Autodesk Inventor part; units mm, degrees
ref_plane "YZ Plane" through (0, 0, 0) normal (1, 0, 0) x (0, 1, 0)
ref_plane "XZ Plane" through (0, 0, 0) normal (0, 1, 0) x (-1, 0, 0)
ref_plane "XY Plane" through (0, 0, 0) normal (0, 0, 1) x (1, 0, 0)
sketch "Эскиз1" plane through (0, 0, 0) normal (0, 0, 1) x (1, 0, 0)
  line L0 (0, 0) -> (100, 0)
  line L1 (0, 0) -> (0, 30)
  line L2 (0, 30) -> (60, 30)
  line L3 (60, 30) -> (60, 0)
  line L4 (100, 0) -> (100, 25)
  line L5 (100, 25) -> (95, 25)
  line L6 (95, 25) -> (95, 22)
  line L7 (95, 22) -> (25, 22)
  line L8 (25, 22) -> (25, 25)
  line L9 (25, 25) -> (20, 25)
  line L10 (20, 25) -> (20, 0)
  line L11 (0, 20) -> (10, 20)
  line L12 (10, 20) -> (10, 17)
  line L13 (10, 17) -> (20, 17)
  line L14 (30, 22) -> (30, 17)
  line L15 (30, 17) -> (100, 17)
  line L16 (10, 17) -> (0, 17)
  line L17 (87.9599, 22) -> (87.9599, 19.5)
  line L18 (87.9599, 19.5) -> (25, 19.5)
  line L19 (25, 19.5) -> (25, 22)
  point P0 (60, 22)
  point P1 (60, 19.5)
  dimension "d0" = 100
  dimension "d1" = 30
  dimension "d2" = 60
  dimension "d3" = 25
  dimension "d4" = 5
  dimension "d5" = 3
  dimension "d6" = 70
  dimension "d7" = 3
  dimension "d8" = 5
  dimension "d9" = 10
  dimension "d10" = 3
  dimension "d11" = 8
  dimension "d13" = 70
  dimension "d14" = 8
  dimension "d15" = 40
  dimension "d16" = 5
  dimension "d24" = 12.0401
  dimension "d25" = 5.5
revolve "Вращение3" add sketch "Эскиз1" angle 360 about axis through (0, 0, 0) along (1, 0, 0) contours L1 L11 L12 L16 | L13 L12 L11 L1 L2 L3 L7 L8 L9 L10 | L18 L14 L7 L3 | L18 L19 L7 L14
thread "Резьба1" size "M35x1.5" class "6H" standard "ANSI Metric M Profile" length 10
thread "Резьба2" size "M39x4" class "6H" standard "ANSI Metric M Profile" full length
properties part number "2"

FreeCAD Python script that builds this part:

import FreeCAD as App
import Part
import Sketcher
from FreeCAD import Vector
Q = App.Units.Quantity

doc = App.newDocument("Part")
body = doc.addObject("PartDesign::Body", "Body")

# Sketch on XY plane
sketch1 = body.newObject("Sketcher::SketchObject", "Sketch")
sketch1.AttachmentSupport = (doc.getObject("XY_Plane"), [""])
sketch1.MapMode = "FlatFace"
sketch1.addGeometry([
    Part.LineSegment(Vector(0, 17, 0), Vector(20, 17, 0)),  # 0
    Part.LineSegment(Vector(20, 17, 0), Vector(20, 25, 0)),  # 1
    Part.LineSegment(Vector(20, 25, 0), Vector(25, 25, 0)),  # 2
    Part.LineSegment(Vector(25, 25, 0), Vector(25, 20, 0)),  # 3
    Part.LineSegment(Vector(25, 20, 0), Vector(60, 20, 0)),  # 4
    Part.LineSegment(Vector(60, 20, 0), Vector(60, 30, 0)),  # 5
    Part.LineSegment(Vector(60, 30, 0), Vector(0, 30, 0)),  # 6
    Part.LineSegment(Vector(0, 30, 0), Vector(0, 17, 0)),  # 7
], False)
sketch1.addConstraint([
    Sketcher.Constraint("Coincident", 0, 2, 1, 1),
    Sketcher.Constraint("Coincident", 1, 2, 2, 1),
    Sketcher.Constraint("Coincident", 2, 2, 3, 1),
    Sketcher.Constraint("Coincident", 3, 2, 4, 1),
    Sketcher.Constraint("Coincident", 4, 2, 5, 1),
    Sketcher.Constraint("Coincident", 5, 2, 6, 1),
    Sketcher.Constraint("Coincident", 6, 2, 7, 1),
    Sketcher.Constraint("Coincident", 7, 2, 0, 1),
    Sketcher.Constraint("Horizontal", 0),
    Sketcher.Constraint("Vertical", 1),
    Sketcher.Constraint("Horizontal", 2),
    Sketcher.Constraint("Vertical", 3),
    Sketcher.Constraint("Horizontal", 4),
    Sketcher.Constraint("Vertical", 5),
    Sketcher.Constraint("Horizontal", 6),
    Sketcher.Constraint("Vertical", 7),
    Sketcher.Constraint("PointOnObject", 6, 2, -2),
    Sketcher.Constraint("DistanceX", 2, 1, 2, 2, Q("5 mm")),
    Sketcher.Constraint("DistanceX", 6, 2, 6, 1, Q("60 mm")),
    Sketcher.Constraint("DistanceY", 1, 1, 1, 2, Q("8 mm")),
    Sketcher.Constraint("DistanceY", 3, 2, 3, 1, Q("5.5 mm")),
    Sketcher.Constraint("DistanceY", -1, 1, 1, 2, Q("25 mm")),
    Sketcher.Constraint("DistanceX", -1, 1, 2, 2, Q("25 mm")),
    Sketcher.Constraint("DistanceY", -1, 1, 5, 2, Q("30 mm")),
])
revolution = body.newObject("PartDesign::Revolution", "Revolution")
revolution.Profile = sketch1
revolution.ReferenceAxis = (sketch1, ["H_Axis"])
revolution.Angle = 360

doc.recompute()
